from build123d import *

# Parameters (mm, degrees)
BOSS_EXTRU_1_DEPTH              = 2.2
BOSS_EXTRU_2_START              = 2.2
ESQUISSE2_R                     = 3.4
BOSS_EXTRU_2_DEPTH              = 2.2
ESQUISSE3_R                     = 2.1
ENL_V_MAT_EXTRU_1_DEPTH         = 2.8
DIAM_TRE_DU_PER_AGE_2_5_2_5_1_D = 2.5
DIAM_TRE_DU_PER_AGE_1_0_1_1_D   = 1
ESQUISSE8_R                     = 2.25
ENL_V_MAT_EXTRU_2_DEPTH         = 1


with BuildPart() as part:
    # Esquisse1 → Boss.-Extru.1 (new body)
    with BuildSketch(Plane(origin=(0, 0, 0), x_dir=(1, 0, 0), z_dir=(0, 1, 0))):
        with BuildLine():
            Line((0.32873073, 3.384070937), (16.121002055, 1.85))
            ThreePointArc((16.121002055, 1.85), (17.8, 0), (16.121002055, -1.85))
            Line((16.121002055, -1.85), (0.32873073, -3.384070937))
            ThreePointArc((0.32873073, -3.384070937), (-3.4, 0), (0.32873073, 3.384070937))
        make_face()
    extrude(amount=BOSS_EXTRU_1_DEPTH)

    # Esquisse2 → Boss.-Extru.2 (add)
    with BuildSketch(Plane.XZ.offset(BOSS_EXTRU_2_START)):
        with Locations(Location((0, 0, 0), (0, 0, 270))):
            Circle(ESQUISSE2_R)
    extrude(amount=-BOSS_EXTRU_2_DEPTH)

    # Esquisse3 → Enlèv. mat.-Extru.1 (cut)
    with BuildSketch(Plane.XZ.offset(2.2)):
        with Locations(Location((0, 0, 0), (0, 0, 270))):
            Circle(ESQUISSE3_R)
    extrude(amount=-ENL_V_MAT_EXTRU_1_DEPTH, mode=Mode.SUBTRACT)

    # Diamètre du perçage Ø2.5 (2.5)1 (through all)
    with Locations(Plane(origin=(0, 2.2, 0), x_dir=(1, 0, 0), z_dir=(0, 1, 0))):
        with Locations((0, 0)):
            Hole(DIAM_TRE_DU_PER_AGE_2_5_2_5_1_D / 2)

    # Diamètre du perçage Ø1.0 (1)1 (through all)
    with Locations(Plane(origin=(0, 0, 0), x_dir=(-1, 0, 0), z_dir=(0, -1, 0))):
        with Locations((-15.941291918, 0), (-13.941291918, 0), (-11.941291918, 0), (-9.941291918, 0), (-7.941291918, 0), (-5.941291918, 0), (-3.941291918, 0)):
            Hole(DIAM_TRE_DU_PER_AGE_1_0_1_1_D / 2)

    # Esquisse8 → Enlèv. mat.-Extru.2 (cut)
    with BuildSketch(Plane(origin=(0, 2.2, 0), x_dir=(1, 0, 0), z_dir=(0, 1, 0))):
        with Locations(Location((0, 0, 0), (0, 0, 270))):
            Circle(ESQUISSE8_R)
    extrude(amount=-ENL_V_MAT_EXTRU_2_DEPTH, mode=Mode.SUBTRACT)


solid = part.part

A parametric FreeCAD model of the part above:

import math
import FreeCAD as App
import Part
import Sketcher
from FreeCAD import Vector

doc = App.newDocument("Part")
body = doc.addObject("PartDesign::Body", "Body")

# Sketch on XZ plane
sketch1 = body.newObject("Sketcher::SketchObject", "Sketch")
sketch1.AttachmentSupport = (doc.getObject("XZ_Plane"), [""])
sketch1.MapMode = "FlatFace"
sketch1.addGeometry(Part.LineSegment(Vector(16.121002, -1.85, 0), Vector(0.328731, -3.384071, 0)), False)
sketch1.addGeometry(Part.ArcOfCircle(Part.Circle(Vector(0, 0, 0), Vector(0, 0, 1), 3.4), math.radians(84.451661), math.radians(275.548339)), False)
sketch1.addGeometry(Part.LineSegment(Vector(0.328731, 3.384071, 0), Vector(16.121002, 1.85, 0)), False)
sketch1.addGeometry(Part.ArcOfCircle(Part.Circle(Vector(15.941292, 0, 0), Vector(0, 0, 1), 1.858708), math.radians(-84.451661), math.radians(84.451661)), False)
sketch1.addConstraint(Sketcher.Constraint("Tangent", 0, 2, 1, 2))
sketch1.addConstraint(Sketcher.Constraint("Tangent", 1, 1, 2, 1))
sketch1.addConstraint(Sketcher.Constraint("Tangent", 2, 2, 3, 2))
sketch1.addConstraint(Sketcher.Constraint("Tangent", 3, 1, 0, 1))
sketch1.addConstraint(Sketcher.Constraint("Coincident", 1, 3, -1, 1))
sketch1.addConstraint(Sketcher.Constraint("PointOnObject", 3, 3, -1))
sketch1.addConstraint(Sketcher.Constraint("Radius", 1, 3.4))
sketch1.addConstraint(Sketcher.Constraint("DistanceY", 3, 1, 2, 2, 3.7))
sketch1.addConstraint(Sketcher.Constraint("DistanceX", -1, 1, 3, 3, 15.941292))
pad1 = body.newObject("PartDesign::Pad", "Pad")
pad1.Profile = sketch1
pad1.Length = 2.2
pad1.Reversed = True

# Sketch on XZ plane
sketch2 = body.newObject("Sketcher::SketchObject", "Sketch001")
sketch2.AttachmentSupport = (doc.getObject("XZ_Plane"), [""])
sketch2.MapMode = "FlatFace"
sketch2.AttachmentOffset = App.Placement(Vector(0, 0, 2.2), App.Rotation())
sketch2.addGeometry(Part.Circle(Vector(0, 0, 0), Vector(0, 0, 1), 3.4), False)
sketch2.addConstraint(Sketcher.Constraint("Coincident", 0, 3, -1, 1))
sketch2.addConstraint(Sketcher.Constraint("Diameter", 0, 6.8))
pad2 = body.newObject("PartDesign::Pad", "Pad001")
pad2.Profile = sketch2
pad2.Length = 2.2
pad2.Reversed = True

# Sketch on XZ plane
sketch3 = body.newObject("Sketcher::SketchObject", "Sketch002")
sketch3.AttachmentSupport = (doc.getObject("XZ_Plane"), [""])
sketch3.MapMode = "FlatFace"
sketch3.AttachmentOffset = App.Placement(Vector(0, 0, 2.2), App.Rotation())
sketch3.addGeometry(Part.Circle(Vector(0, 0, 0), Vector(0, 0, 1), 2.1), False)
sketch3.addConstraint(Sketcher.Constraint("Coincident", 0, 3, -1, 1))
sketch3.addConstraint(Sketcher.Constraint("Diameter", 0, 4.2))
pocket1 = body.newObject("PartDesign::Pocket", "Pocket")
pocket1.Profile = sketch3
pocket1.Length = 2.8

# Sketch on XZ plane
sketch4 = body.newObject("Sketcher::SketchObject", "Sketch003")
sketch4.AttachmentSupport = (doc.getObject("XZ_Plane"), [""])
sketch4.MapMode = "FlatFace"
sketch4.AttachmentOffset = App.Placement(Vector(0, 0, -2.2), App.Rotation())
sketch4.addGeometry(Part.Circle(Vector(0, 0, 0), Vector(0, 0, 1), 1.25), False)
sketch4.addConstraint(Sketcher.Constraint("Coincident", 0, 3, -1, 1))
sketch4.addConstraint(Sketcher.Constraint("Diameter", 0, 2.5))
doc.recompute()
hole = body.newObject("PartDesign::Hole", "Hole")
hole.Profile = sketch4
hole.ThreadType = "None"
hole.Diameter = 2.5
hole.DepthType = "ThroughAll"
hole.Reversed = True

# Sketch on XZ plane
sketch5 = body.newObject("Sketcher::SketchObject", "Sketch004")
sketch5.AttachmentSupport = (doc.getObject("XZ_Plane"), [""])
sketch5.MapMode = "FlatFace"
sketch5.addGeometry(Part.Circle(Vector(15.941292, 0, 0), Vector(0, 0, 1), 0.5), False)
sketch5.addGeometry(Part.Circle(Vector(13.941292, 0, 0), Vector(0, 0, 1), 0.5), False)
sketch5.addGeometry(Part.Circle(Vector(11.941292, 0, 0), Vector(0, 0, 1), 0.5), False)
sketch5.addGeometry(Part.Circle(Vector(9.941292, 0, 0), Vector(0, 0, 1), 0.5), False)
sketch5.addGeometry(Part.Circle(Vector(7.941292, 0, 0), Vector(0, 0, 1), 0.5), False)
sketch5.addGeometry(Part.Circle(Vector(5.941292, 0, 0), Vector(0, 0, 1), 0.5), False)
sketch5.addGeometry(Part.Circle(Vector(3.941292, 0, 0), Vector(0, 0, 1), 0.5), False)
sketch5.addConstraint(Sketcher.Constraint("Equal", 0, 1))
sketch5.addConstraint(Sketcher.Constraint("Equal", 1, 2))
sketch5.addConstraint(Sketcher.Constraint("Equal", 2, 3))
sketch5.addConstraint(Sketcher.Constraint("Equal", 3, 4))
sketch5.addConstraint(Sketcher.Constraint("Equal", 4, 5))
sketch5.addConstraint(Sketcher.Constraint("Equal", 5, 6))
sketch5.addConstraint(Sketcher.Constraint("PointOnObject", 0, 3, -1))
sketch5.addConstraint(Sketcher.Constraint("PointOnObject", 1, 3, -1))
sketch5.addConstraint(Sketcher.Constraint("PointOnObject", 2, 3, -1))
sketch5.addConstraint(Sketcher.Constraint("PointOnObject", 3, 3, -1))
sketch5.addConstraint(Sketcher.Constraint("PointOnObject", 4, 3, -1))
sketch5.addConstraint(Sketcher.Constraint("PointOnObject", 5, 3, -1))
sketch5.addConstraint(Sketcher.Constraint("PointOnObject", 6, 3, -1))
sketch5.addConstraint(Sketcher.Constraint("Diameter", 0, 1.0))
sketch5.addConstraint(Sketcher.Constraint("DistanceX", 1, 3, 0, 3, 2.0))
sketch5.addConstraint(Sketcher.Constraint("DistanceX", 2, 3, 1, 3, 2.0))
sketch5.addConstraint(Sketcher.Constraint("DistanceX", 3, 3, 2, 3, 2.0))
sketch5.addConstraint(Sketcher.Constraint("DistanceX", 4, 3, 3, 3, 2.0))
sketch5.addConstraint(Sketcher.Constraint("DistanceX", 5, 3, 4, 3, 2.0))
sketch5.addConstraint(Sketcher.Constraint("DistanceX", 6, 3, 5, 3, 2.0))
sketch5.addConstraint(Sketcher.Constraint("DistanceX", -1, 1, 0, 3, 15.941292))
doc.recompute()
hole2 = body.newObject("PartDesign::Hole", "Hole001")
hole2.Profile = sketch5
hole2.ThreadType = "None"
hole2.Diameter = 1
hole2.DepthType = "ThroughAll"

# Sketch on XZ plane
sketch6 = body.newObject("Sketcher::SketchObject", "Sketch005")
sketch6.AttachmentSupport = (doc.getObject("XZ_Plane"), [""])
sketch6.MapMode = "FlatFace"
sketch6.AttachmentOffset = App.Placement(Vector(0, 0, -2.2), App.Rotation())
sketch6.addGeometry(Part.Circle(Vector(0, 0, 0), Vector(0, 0, 1), 2.25), False)
sketch6.addConstraint(Sketcher.Constraint("Coincident", 0, 3, -1, 1))
sketch6.addConstraint(Sketcher.Constraint("Diameter", 0, 4.5))
pocket2 = body.newObject("PartDesign::Pocket", "Pocket001")
pocket2.Profile = sketch6
pocket2.Length = 1
pocket2.Reversed = True

doc.recompute()
